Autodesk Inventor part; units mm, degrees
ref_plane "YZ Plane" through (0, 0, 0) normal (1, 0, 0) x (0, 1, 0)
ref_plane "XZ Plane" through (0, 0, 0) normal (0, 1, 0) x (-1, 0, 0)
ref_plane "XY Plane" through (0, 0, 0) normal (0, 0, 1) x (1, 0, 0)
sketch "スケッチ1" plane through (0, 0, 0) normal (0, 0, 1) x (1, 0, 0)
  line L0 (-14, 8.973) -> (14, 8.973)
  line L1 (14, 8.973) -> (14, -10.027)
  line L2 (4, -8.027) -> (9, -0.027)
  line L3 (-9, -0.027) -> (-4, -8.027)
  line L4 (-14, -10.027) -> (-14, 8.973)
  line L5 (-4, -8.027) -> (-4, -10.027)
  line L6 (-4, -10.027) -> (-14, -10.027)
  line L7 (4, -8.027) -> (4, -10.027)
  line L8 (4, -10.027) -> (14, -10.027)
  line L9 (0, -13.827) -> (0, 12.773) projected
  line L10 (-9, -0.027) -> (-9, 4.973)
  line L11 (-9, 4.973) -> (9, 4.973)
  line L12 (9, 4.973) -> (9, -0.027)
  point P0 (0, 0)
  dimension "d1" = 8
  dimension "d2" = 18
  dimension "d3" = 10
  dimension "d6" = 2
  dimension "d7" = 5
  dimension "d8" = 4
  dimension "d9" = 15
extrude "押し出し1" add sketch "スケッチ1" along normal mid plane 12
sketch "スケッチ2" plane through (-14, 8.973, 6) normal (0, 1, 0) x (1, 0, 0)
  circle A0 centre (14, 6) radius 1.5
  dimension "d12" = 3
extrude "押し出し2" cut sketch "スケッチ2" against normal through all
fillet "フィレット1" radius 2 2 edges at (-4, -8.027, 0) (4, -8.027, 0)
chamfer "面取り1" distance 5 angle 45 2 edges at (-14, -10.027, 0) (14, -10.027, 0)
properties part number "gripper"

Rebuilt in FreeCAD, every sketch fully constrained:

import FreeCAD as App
import Part
import Sketcher
from FreeCAD import Vector


def edges_at(feature, points):
    """Names of the edges that pass closest to the given points."""
    edges = feature.Shape.Edges
    near = lambda p: min(range(len(edges)), key=lambda i: edges[i].distToShape(Part.Vertex(*p))[0])
    return sorted({f"Edge{near(p) + 1}" for p in points})


def add_polygon(sketch, points):
    """Adds a closed chain of lines whose ends are joined by coincident constraints."""
    first, n = sketch.GeometryCount, len(points)
    for a, b in zip(points, points[1:] + points[:1]):
        sketch.addGeometry(Part.LineSegment(App.Vector(*a, 0), App.Vector(*b, 0)), False)
    for i in range(n):
        sketch.addConstraint(Sketcher.Constraint("Coincident", first + i, 2, first + (i + 1) % n, 1))

doc = App.newDocument("Part")
body = doc.addObject("PartDesign::Body", "Body")

# Sketch on XY plane
sketch1 = body.newObject("Sketcher::SketchObject", "Sketch")
sketch1.AttachmentSupport = (doc.getObject("XY_Plane"), [""])
sketch1.MapMode = "FlatFace"
add_polygon(sketch1, [(-14, 9), (-14, -10), (-4, -10), (-4, -8), (-9, 0), (-9, 5), (9, 5), (9, 0), (4, -8), (4, -10), (14, -10), (14, 9)])  # lines 0-11
sketch1.addConstraint([
    Sketcher.Constraint("Vertical", 0),
    Sketcher.Constraint("Horizontal", 1),
    Sketcher.Constraint("Vertical", 2),
    Sketcher.Constraint("Vertical", 4),
    Sketcher.Constraint("Horizontal", 5),
    Sketcher.Constraint("Vertical", 6),
    Sketcher.Constraint("Vertical", 8),
    Sketcher.Constraint("Horizontal", 9),
    Sketcher.Constraint("Vertical", 10),
    Sketcher.Constraint("Horizontal", 11),
    Sketcher.Constraint("Symmetric", 3, 2, 6, 2, -2),
    Sketcher.Constraint("Symmetric", 2, 2, 7, 2, -2),
    Sketcher.Constraint("Symmetric", 0, 2, 9, 2, -2),
    Sketcher.Constraint("DistanceX", 1, 1, 1, 2, 10.0),
    Sketcher.Constraint("DistanceX", 5, 1, 5, 2, 18.0),
    Sketcher.Constraint("DistanceY", 2, 1, 2, 2, 2.0),
    Sketcher.Constraint("DistanceY", 4, 1, 4, 2, 5.0),
    Sketcher.Constraint("DistanceX", 1, 2, -1, 1, 4.0),
    Sketcher.Constraint("DistanceY", 2, 2, 3, 2, 8.0),
    Sketcher.Constraint("DistanceY", 5, 2, 10, 2, 4.0),
    Sketcher.Constraint("DistanceY", 0, 2, -1, 1, 10.027),
])
pad1 = body.newObject("PartDesign::Pad", "Pad")
pad1.Profile = sketch1
pad1.Length = 12
pad1.Midplane = True

# Sketch on XZ plane
sketch2 = body.newObject("Sketcher::SketchObject", "Sketch001")
sketch2.AttachmentSupport = (doc.getObject("XZ_Plane"), [""])
sketch2.MapMode = "FlatFace"
sketch2.AttachmentOffset = App.Placement(Vector(0, 0, -8.973), App.Rotation())
sketch2.addGeometry(Part.Circle(Vector(0, 0, 0), Vector(0, 0, 1), 1.5), False)
sketch2.addConstraint([
    Sketcher.Constraint("Coincident", 0, 3, -1, 1),
    Sketcher.Constraint("Diameter", 0, 3.0),
])
pocket1 = body.newObject("PartDesign::Pocket", "Pocket")
pocket1.Profile = sketch2
pocket1.Type = "ThroughAll"
pocket1.Reversed = True
doc.recompute()

fillet = body.newObject("PartDesign::Fillet", "Fillet")
fillet.Base = (pocket1, edges_at(pocket1, [(-4, -8.027, 0), (4, -8.027, 0)]))
fillet.Radius = 2
doc.recompute()

chamfer = body.newObject("PartDesign::Chamfer", "Chamfer")
chamfer.Base = (fillet, edges_at(fillet, [(-14, -10.027, 0), (14, -10.027, 0)]))
chamfer.Size = 5

doc.recompute()
